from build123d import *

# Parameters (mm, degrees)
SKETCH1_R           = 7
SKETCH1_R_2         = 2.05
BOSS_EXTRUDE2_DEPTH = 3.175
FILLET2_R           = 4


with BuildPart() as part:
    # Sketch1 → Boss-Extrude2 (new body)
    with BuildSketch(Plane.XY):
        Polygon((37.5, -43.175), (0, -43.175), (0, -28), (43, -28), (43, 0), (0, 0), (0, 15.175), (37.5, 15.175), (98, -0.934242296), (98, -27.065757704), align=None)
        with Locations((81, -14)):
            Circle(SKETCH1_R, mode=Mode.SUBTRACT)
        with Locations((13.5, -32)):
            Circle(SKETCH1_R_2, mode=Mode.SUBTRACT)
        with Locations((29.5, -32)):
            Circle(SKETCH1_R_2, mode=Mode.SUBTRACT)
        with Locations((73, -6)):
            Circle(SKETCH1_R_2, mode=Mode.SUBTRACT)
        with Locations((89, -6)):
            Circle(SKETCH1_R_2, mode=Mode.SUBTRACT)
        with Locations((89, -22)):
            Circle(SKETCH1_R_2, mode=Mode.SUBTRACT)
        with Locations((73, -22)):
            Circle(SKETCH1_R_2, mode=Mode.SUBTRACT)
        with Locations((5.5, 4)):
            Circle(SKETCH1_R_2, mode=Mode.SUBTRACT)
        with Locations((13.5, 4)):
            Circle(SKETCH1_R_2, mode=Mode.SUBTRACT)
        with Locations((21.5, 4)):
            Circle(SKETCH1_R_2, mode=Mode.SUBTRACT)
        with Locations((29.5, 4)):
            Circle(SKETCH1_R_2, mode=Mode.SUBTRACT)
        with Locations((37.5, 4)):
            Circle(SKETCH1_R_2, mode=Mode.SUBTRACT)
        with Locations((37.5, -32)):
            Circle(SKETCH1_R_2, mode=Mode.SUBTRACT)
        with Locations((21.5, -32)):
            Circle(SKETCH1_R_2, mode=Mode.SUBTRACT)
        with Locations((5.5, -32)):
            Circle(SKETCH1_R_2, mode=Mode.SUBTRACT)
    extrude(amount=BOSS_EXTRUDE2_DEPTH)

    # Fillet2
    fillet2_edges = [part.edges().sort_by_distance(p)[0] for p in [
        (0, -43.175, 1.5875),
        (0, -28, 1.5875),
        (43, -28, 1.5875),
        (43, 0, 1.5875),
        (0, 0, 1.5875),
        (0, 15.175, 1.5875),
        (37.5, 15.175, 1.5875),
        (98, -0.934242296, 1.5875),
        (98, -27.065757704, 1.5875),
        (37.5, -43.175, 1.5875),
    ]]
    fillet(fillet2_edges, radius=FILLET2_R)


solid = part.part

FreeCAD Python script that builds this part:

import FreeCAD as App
import Part
import Sketcher
from FreeCAD import Vector


def edges_at(feature, points):
    """Names of the edges that pass closest to the given points."""
    edges = feature.Shape.Edges
    near = lambda p: min(range(len(edges)), key=lambda i: edges[i].distToShape(Part.Vertex(*p))[0])
    return sorted({f"Edge{near(p) + 1}" for p in points})

doc = App.newDocument("Part")
params = doc.addObject("Spreadsheet::Sheet", "Params")
for row, (alias, value) in enumerate([
    ("sketch1_diameter", "14 mm"),
    ("sketch1_diameter2", "4.1 mm"),
    ("sketch1_width", "43 mm"),
    ("sketch1_height", "28 mm"),
    ("sketch1_width2", "37.5 mm"),
    ("pad1_length", "3.175 mm"),
    ("fillet_radius", "4 mm"),
], start=1):
    params.set(f"A{row}", alias)
    params.set(f"B{row}", "=" + value)
    params.setAlias(f"B{row}", alias)

body = doc.addObject("PartDesign::Body", "Body")

# Sketch on XY plane
sketch1 = body.newObject("Sketcher::SketchObject", "Sketch")
sketch1.AttachmentSupport = (doc.getObject("XY_Plane"), [""])
sketch1.MapMode = "FlatFace"
sketch1.addGeometry([
    Part.LineSegment(Vector(0, -43.2, 0), Vector(37.5, -43.2, 0)),  # 0
    Part.LineSegment(Vector(37.5, -43.2, 0), Vector(98, -27.1, 0)),  # 1
    Part.LineSegment(Vector(98, -27.1, 0), Vector(98, -0.9, 0)),  # 2
    Part.LineSegment(Vector(98, -0.9, 0), Vector(37.5, 15.2, 0)),  # 3
    Part.LineSegment(Vector(37.5, 15.2, 0), Vector(0, 15.2, 0)),  # 4
    Part.LineSegment(Vector(0, 15.2, 0), Vector(0, 0, 0)),  # 5
    Part.LineSegment(Vector(0, 0, 0), Vector(43, 0, 0)),  # 6
    Part.LineSegment(Vector(43, 0, 0), Vector(43, -28, 0)),  # 7
    Part.LineSegment(Vector(43, -28, 0), Vector(0, -28, 0)),  # 8
    Part.LineSegment(Vector(0, -28, 0), Vector(0, -43.2, 0)),  # 9
    Part.Circle(Vector(89, -22, 0), Vector(0, 0, 1), 2),  # 10
    Part.Circle(Vector(73, -22, 0), Vector(0, 0, 1), 2),  # 11
    Part.Circle(Vector(81, -14, 0), Vector(0, 0, 1), 7),  # 12
    Part.Circle(Vector(37.5, -32, 0), Vector(0, 0, 1), 2),  # 13
    Part.Circle(Vector(29.5, -32, 0), Vector(0, 0, 1), 2),  # 14
    Part.Circle(Vector(21.5, -32, 0), Vector(0, 0, 1), 2),  # 15
    Part.Circle(Vector(13.5, -32, 0), Vector(0, 0, 1), 2),  # 16
    Part.Circle(Vector(5.5, -32, 0), Vector(0, 0, 1), 2),  # 17
    Part.Circle(Vector(89, -6, 0), Vector(0, 0, 1), 2),  # 18
    Part.Circle(Vector(73, -6, 0), Vector(0, 0, 1), 2),  # 19
    Part.Circle(Vector(37.5, 4, 0), Vector(0, 0, 1), 2),  # 20
    Part.Circle(Vector(29.5, 4, 0), Vector(0, 0, 1), 2),  # 21
    Part.Circle(Vector(21.5, 4, 0), Vector(0, 0, 1), 2),  # 22
    Part.Circle(Vector(13.5, 4, 0), Vector(0, 0, 1), 2),  # 23
    Part.Circle(Vector(5.5, 4, 0), Vector(0, 0, 1), 2),  # 24
], False)
sketch1.addConstraint([
    Sketcher.Constraint("Coincident", 0, 2, 1, 1),
    Sketcher.Constraint("Coincident", 1, 2, 2, 1),
    Sketcher.Constraint("Coincident", 2, 2, 3, 1),
    Sketcher.Constraint("Coincident", 3, 2, 4, 1),
    Sketcher.Constraint("Coincident", 4, 2, 5, 1),
    Sketcher.Constraint("Coincident", 5, 2, 6, 1),
    Sketcher.Constraint("Coincident", 6, 2, 7, 1),
    Sketcher.Constraint("Coincident", 7, 2, 8, 1),
    Sketcher.Constraint("Coincident", 8, 2, 9, 1),
    Sketcher.Constraint("Coincident", 9, 2, 0, 1),
    Sketcher.Constraint("Horizontal", 0),
    Sketcher.Constraint("Vertical", 2),
    Sketcher.Constraint("Horizontal", 4),
    Sketcher.Constraint("Vertical", 5),
    Sketcher.Constraint("Horizontal", 6),
    Sketcher.Constraint("Vertical", 7),
    Sketcher.Constraint("Horizontal", 8),
    Sketcher.Constraint("Vertical", 9),
    Sketcher.Constraint("Coincident", 5, 2, -1, 1),
    Sketcher.Constraint("Equal", 10, 11),
    Sketcher.Constraint("Equal", 11, 13),
    Sketcher.Constraint("Equal", 13, 14),
    Sketcher.Constraint("Equal", 14, 15),
    Sketcher.Constraint("Equal", 15, 16),
    Sketcher.Constraint("Equal", 16, 17),
    Sketcher.Constraint("Equal", 17, 18),
    Sketcher.Constraint("Equal", 18, 19),
    Sketcher.Constraint("Equal", 19, 20),
    Sketcher.Constraint("Equal", 20, 21),
    Sketcher.Constraint("Equal", 21, 22),
    Sketcher.Constraint("Equal", 22, 23),
    Sketcher.Constraint("Equal", 23, 24),
    Sketcher.Constraint("PointOnObject", 8, 2, -2),
    Sketcher.Constraint("Horizontal", 10, 3, 11, 3),
    Sketcher.Constraint("Horizontal", 13, 3, 14, 3),
    Sketcher.Constraint("Horizontal", 14, 3, 15, 3),
    Sketcher.Constraint("Horizontal", 15, 3, 16, 3),
    Sketcher.Constraint("Horizontal", 16, 3, 17, 3),
    Sketcher.Constraint("Horizontal", 18, 3, 19, 3),
    Sketcher.Constraint("Horizontal", 20, 3, 21, 3),
    Sketcher.Constraint("Horizontal", 21, 3, 22, 3),
    Sketcher.Constraint("Horizontal", 22, 3, 23, 3),
    Sketcher.Constraint("Horizontal", 23, 3, 24, 3),
    Sketcher.Constraint("Vertical", 10, 3, 18, 3),
    Sketcher.Constraint("Vertical", 11, 3, 19, 3),
    Sketcher.Constraint("Vertical", 13, 3, 20, 3),
    Sketcher.Constraint("Vertical", 14, 3, 21, 3),
    Sketcher.Constraint("Vertical", 15, 3, 22, 3),
    Sketcher.Constraint("Vertical", 16, 3, 23, 3),
    Sketcher.Constraint("Vertical", 17, 3, 24, 3),
    Sketcher.Constraint("Vertical", 20, 3, 0, 2),
    Sketcher.Constraint("Vertical", 0, 2, 3, 2),
    Sketcher.Constraint("Equal", 5, 9),
    Sketcher.Constraint("Equal", 1, 3),
    Sketcher.Constraint("Diameter", 12, 14.0),
    Sketcher.Constraint("Diameter", 10, 4.1),
    Sketcher.Constraint("DistanceX", 6, 1, 6, 2, 43.0),
    Sketcher.Constraint("DistanceY", 7, 2, 7, 1, 28.0),
    Sketcher.Constraint("DistanceX", 0, 1, 0, 2, 37.5),
    Sketcher.Constraint("DistanceX", -1, 1, 10, 3, 89.0),
    Sketcher.Constraint("DistanceY", 10, 3, -1, 1, 22.0),
    Sketcher.Constraint("DistanceX", -1, 1, 11, 3, 73.0),
    Sketcher.Constraint("DistanceX", -1, 1, 12, 3, 81.0),
    Sketcher.Constraint("DistanceY", 12, 3, -1, 1, 14.0),
    Sketcher.Constraint("DistanceY", 13, 3, -1, 1, 32.0),
    Sketcher.Constraint("DistanceY", 18, 3, -1, 1, 6.0),
    Sketcher.Constraint("DistanceY", -1, 1, 20, 3, 4.0),
    Sketcher.Constraint("DistanceX", -1, 1, 1, 2, 98.0),
    Sketcher.Constraint("DistanceX", 14, 3, 13, 3, 8.0),
    Sketcher.Constraint("DistanceX", 15, 3, 14, 3, 8.0),
    Sketcher.Constraint("DistanceX", 16, 3, 15, 3, 8.0),
    Sketcher.Constraint("DistanceX", 17, 3, 16, 3, 8.0),
    Sketcher.Constraint("DistanceY", 5, 2, 5, 1, 15.175),
    Sketcher.Constraint("Distance", 1, 62.607968),
])
sketch1.setExpression("Constraints[54]", "Params.sketch1_diameter")
sketch1.setExpression("Constraints[55]", "Params.sketch1_diameter2")
sketch1.setExpression("Constraints[56]", "Params.sketch1_width")
sketch1.setExpression("Constraints[57]", "Params.sketch1_height")
sketch1.setExpression("Constraints[58]", "Params.sketch1_width2")
pad1 = body.newObject("PartDesign::Pad", "Pad")
pad1.Profile = sketch1
pad1.setExpression("Length", "Params.pad1_length")
doc.recompute()

fillet = body.newObject("PartDesign::Fillet", "Fillet")
fillet.Base = (pad1, edges_at(pad1, [
    (0, -43.175, 1.587),
    (0, -28, 1.587),
    (43, -28, 1.587),
    (43, 0, 1.587),
    (0, 0, 1.587),
    (0, 15.175, 1.587),
    (37.5, 15.175, 1.587),
    (98, -0.934, 1.587),
    (98, -27.066, 1.587),
    (37.5, -43.175, 1.587),
]))
fillet.setExpression("Radius", "Params.fillet_radius")

doc.recompute()
